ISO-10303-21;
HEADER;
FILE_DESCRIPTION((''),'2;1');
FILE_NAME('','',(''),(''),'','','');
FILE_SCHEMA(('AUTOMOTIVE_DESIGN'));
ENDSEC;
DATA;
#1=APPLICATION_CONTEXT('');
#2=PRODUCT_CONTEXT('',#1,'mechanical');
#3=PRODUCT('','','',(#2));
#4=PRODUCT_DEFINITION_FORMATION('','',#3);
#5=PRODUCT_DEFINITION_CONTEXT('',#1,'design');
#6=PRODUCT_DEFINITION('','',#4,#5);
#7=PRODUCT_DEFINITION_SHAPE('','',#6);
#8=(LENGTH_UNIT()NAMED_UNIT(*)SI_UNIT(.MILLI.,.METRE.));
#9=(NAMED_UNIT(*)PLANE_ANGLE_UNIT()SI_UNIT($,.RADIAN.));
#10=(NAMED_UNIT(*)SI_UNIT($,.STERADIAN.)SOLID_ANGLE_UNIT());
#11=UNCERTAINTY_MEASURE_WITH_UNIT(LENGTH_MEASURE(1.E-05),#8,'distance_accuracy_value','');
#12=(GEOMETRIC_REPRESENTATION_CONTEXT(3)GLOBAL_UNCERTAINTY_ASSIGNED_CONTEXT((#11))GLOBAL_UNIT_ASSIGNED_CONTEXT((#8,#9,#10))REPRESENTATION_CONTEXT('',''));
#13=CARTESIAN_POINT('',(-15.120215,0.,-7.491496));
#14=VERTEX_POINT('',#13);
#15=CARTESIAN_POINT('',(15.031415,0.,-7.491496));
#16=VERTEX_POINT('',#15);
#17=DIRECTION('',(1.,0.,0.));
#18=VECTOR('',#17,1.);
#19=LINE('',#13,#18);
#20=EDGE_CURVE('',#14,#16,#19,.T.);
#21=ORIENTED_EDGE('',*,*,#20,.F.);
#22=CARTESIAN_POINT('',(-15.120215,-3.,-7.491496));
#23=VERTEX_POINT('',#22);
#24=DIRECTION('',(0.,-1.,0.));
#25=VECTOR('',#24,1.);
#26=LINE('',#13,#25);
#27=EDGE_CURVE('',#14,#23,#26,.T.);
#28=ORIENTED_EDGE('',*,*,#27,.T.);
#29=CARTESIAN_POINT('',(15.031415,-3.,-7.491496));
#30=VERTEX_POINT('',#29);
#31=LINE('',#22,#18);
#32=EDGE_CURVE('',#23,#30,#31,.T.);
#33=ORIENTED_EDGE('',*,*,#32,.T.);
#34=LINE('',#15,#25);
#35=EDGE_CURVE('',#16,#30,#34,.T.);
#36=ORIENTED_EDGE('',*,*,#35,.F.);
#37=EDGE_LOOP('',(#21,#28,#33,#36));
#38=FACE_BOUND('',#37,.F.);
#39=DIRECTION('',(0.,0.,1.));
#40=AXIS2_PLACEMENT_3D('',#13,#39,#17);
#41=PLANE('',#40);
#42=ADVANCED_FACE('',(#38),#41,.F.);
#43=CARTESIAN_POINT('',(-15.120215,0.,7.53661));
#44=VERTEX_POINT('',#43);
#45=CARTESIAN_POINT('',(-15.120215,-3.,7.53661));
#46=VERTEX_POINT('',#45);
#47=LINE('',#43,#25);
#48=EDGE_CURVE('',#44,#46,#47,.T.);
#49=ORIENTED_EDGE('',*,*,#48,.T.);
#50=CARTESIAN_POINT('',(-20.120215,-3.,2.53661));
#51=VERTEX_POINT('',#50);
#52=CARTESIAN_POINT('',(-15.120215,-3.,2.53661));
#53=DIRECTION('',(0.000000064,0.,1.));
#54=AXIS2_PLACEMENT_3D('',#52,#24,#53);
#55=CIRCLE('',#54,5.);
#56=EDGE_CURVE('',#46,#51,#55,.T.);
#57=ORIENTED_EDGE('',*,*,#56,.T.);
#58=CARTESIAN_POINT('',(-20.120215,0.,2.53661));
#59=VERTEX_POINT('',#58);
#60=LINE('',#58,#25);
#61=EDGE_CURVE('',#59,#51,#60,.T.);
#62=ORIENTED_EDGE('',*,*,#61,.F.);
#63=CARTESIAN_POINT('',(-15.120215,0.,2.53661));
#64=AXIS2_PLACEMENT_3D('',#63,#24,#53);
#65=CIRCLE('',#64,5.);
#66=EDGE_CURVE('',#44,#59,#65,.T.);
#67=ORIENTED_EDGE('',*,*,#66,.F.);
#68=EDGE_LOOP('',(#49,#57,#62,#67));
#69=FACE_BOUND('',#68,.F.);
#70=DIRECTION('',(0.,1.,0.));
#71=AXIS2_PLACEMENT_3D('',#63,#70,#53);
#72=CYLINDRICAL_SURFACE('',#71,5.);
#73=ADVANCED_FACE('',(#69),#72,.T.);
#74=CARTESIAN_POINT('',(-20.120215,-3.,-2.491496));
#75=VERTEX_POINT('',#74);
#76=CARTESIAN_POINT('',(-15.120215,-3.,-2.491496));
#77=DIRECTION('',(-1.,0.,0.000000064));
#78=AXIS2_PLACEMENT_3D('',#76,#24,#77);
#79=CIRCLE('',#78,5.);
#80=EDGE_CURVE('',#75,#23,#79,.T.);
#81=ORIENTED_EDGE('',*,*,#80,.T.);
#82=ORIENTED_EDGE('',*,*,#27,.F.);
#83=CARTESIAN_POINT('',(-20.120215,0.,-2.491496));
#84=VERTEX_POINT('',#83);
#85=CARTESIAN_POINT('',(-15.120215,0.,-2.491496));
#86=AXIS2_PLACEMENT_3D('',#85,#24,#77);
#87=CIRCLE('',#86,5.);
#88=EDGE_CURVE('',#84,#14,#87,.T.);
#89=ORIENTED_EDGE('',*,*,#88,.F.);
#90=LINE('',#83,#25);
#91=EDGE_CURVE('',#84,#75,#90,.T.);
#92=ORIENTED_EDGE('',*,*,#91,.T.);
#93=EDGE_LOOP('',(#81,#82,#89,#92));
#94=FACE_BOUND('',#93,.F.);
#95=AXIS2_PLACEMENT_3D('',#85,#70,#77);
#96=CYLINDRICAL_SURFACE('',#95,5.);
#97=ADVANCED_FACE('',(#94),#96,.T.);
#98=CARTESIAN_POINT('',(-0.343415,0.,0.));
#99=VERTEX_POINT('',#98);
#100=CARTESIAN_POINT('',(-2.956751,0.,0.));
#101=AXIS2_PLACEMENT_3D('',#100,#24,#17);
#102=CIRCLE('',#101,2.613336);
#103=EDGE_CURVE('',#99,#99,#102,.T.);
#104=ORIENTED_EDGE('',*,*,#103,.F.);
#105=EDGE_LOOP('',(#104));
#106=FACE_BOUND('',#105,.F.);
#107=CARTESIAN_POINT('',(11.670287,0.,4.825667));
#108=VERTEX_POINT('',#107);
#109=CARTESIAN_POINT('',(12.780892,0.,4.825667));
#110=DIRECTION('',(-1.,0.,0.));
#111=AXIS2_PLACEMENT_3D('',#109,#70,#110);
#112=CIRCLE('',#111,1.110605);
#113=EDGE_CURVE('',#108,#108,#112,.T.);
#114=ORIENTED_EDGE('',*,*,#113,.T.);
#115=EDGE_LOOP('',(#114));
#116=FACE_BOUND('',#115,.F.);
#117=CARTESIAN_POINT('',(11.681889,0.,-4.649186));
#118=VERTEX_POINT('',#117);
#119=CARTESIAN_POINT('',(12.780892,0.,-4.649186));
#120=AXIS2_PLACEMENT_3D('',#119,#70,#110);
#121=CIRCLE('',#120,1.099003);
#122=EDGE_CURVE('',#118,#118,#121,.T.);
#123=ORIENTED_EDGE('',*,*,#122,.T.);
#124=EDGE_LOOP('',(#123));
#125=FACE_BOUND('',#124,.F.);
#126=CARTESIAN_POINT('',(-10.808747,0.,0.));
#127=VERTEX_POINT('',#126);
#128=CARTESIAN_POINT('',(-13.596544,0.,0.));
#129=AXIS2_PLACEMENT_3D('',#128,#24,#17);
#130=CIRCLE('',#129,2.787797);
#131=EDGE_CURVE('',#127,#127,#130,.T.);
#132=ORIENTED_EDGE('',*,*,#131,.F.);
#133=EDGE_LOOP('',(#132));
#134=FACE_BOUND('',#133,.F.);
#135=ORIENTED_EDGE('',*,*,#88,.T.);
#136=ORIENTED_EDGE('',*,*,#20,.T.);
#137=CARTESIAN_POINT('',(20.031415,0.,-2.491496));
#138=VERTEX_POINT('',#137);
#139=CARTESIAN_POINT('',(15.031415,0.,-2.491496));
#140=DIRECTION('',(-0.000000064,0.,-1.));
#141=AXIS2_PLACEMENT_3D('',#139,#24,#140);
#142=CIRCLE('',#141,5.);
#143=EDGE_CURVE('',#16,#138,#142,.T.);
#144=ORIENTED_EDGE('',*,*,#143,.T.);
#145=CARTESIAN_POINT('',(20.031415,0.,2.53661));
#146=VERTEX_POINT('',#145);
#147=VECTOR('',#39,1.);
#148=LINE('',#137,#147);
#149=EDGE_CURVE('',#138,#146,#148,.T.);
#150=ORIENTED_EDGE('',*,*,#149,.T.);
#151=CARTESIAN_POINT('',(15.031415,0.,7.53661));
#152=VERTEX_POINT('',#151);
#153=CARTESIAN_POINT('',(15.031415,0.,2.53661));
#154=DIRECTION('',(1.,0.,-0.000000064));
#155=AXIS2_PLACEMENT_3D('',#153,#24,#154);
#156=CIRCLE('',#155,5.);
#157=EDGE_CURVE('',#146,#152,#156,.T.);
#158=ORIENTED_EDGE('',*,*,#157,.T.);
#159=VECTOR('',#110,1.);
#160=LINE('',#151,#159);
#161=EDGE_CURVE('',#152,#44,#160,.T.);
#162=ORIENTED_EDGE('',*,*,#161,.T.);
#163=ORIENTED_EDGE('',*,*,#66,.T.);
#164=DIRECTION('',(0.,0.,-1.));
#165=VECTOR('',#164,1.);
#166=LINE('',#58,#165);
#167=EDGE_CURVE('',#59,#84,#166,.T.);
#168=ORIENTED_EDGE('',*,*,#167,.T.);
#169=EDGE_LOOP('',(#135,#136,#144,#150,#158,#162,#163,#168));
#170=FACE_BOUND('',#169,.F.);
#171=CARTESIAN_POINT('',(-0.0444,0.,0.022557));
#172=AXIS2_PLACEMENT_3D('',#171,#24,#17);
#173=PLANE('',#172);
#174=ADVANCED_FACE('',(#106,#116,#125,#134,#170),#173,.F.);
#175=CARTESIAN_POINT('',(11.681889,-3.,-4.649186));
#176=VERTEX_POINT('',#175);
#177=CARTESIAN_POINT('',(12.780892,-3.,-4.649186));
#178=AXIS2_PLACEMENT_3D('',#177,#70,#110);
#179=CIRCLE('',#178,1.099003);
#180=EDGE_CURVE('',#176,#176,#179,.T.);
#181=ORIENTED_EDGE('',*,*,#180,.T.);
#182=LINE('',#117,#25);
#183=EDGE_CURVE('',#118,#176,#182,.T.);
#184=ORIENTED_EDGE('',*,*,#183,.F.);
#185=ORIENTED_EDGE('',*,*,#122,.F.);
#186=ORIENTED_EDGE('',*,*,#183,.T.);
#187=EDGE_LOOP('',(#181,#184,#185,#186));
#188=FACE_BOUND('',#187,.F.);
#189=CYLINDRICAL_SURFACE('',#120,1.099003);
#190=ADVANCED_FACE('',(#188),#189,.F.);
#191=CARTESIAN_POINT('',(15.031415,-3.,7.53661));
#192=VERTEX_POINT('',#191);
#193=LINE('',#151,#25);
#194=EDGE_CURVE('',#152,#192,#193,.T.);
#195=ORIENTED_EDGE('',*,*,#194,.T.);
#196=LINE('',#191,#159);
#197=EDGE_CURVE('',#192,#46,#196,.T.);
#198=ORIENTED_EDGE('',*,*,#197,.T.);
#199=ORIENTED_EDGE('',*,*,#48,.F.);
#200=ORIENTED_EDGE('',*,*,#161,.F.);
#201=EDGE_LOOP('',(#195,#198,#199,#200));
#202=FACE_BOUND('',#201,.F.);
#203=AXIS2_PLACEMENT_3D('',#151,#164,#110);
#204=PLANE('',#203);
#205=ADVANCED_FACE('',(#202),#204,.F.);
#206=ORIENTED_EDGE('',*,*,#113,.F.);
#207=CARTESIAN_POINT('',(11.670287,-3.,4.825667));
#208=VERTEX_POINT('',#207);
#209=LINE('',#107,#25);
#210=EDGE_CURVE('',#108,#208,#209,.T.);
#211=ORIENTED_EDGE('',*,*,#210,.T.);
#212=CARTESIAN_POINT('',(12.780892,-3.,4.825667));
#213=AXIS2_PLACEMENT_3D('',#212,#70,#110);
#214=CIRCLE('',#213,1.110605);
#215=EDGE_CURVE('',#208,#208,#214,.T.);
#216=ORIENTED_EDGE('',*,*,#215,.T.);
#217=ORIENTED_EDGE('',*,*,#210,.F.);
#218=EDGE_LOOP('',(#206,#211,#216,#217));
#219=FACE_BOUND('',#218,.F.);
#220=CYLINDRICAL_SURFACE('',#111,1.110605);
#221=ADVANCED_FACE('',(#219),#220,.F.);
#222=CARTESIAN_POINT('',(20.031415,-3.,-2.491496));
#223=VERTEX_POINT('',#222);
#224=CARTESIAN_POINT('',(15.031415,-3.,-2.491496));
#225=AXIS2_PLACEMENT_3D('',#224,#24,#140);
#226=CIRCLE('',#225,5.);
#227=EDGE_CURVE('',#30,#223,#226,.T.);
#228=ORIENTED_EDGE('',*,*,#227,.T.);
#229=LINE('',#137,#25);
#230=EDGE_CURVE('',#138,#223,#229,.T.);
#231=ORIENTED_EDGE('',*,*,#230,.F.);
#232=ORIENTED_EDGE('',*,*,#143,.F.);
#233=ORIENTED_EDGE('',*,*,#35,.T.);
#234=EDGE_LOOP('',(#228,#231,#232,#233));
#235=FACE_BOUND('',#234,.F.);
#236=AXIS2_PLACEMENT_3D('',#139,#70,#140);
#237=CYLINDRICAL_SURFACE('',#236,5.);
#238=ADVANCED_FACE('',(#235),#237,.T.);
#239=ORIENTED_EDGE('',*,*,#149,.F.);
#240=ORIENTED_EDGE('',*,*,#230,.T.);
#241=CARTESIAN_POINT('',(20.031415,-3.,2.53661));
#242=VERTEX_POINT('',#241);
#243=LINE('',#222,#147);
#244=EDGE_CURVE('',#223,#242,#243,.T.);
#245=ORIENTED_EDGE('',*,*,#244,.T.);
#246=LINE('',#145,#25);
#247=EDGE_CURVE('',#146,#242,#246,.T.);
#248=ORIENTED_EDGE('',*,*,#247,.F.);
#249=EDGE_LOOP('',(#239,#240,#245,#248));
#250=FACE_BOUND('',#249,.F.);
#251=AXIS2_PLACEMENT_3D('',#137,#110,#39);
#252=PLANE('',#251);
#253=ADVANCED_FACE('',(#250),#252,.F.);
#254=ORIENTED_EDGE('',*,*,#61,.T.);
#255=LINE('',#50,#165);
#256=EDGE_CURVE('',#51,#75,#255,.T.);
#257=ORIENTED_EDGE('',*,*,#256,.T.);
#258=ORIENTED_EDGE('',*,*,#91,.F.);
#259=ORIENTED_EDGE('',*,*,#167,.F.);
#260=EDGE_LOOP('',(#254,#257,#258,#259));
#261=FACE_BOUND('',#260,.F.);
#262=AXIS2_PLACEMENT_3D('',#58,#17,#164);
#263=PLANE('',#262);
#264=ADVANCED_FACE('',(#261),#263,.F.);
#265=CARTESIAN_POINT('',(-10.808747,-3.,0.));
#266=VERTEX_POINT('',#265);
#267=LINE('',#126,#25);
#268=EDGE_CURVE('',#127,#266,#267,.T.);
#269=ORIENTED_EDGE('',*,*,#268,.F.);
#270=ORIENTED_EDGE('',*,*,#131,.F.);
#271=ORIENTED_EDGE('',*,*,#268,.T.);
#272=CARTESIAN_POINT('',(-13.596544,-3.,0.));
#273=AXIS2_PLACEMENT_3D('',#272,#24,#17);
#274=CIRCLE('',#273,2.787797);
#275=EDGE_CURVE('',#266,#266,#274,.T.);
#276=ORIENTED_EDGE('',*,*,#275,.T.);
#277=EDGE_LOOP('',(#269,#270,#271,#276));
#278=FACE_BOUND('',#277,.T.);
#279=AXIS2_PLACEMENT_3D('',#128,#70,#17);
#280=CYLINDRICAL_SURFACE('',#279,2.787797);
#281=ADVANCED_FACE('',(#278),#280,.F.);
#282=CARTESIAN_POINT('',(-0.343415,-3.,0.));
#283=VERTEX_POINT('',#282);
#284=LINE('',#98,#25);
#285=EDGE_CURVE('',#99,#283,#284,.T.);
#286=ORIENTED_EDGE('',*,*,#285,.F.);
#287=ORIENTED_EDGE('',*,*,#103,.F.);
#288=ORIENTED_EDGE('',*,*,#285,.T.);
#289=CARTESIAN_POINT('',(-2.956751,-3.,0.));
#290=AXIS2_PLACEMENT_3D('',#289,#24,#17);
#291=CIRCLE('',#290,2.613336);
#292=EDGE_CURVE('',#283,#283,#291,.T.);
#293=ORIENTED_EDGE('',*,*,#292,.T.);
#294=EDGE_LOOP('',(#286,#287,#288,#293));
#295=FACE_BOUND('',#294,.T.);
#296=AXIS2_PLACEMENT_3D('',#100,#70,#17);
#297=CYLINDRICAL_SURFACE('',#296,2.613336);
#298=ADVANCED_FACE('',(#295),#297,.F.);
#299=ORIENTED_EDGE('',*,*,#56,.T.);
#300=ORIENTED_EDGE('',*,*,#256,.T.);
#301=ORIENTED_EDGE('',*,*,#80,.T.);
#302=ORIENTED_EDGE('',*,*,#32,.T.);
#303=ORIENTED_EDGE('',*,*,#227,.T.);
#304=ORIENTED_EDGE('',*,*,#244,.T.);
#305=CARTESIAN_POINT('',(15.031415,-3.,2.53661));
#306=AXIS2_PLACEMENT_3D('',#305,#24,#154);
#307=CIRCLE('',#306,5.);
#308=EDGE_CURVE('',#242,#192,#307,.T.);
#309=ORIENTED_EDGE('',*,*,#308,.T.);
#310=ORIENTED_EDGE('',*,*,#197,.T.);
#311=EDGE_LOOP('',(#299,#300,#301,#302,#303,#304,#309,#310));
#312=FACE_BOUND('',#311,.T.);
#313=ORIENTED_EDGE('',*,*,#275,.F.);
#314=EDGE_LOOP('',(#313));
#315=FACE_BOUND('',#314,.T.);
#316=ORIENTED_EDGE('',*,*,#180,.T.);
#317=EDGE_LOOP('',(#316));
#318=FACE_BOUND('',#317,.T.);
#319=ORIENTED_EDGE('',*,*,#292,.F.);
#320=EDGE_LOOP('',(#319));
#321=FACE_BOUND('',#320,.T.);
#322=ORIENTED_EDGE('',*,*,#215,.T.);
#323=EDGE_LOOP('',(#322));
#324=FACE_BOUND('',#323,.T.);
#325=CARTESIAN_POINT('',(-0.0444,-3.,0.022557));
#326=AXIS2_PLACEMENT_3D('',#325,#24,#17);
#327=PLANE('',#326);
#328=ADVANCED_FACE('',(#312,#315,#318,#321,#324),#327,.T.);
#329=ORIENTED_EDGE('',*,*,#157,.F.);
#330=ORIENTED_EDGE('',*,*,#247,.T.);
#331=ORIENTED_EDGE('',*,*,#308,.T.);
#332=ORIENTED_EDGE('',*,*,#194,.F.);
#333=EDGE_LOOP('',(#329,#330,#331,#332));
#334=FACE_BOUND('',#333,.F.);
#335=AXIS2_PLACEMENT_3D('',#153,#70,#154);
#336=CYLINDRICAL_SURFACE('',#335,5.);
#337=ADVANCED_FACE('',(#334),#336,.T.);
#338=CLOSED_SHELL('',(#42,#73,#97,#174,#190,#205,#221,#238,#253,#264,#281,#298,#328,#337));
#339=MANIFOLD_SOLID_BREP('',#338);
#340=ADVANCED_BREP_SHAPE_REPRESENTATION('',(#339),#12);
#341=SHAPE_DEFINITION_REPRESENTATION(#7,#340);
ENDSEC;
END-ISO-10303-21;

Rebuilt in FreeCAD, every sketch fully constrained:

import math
import FreeCAD as App
import Part
import Sketcher

doc = App.newDocument("Part")
body = doc.addObject("PartDesign::Body", "Body")

sketch1 = body.newObject("Sketcher::SketchObject", "Sketch")
sketch1.AttachmentSupport = (doc.getObject("XZ_Plane"), [""])
sketch1.MapMode = "FlatFace"
sketch1.addGeometry([
    Part.LineSegment(App.Vector(15.031415, 7.53661, 0), App.Vector(-15.120215, 7.53661, 0)),
    Part.ArcOfCircle(Part.Circle(App.Vector(-15.120215, 2.53661, 0), App.Vector(0, 0, 1), 5), math.radians(89.999996), math.radians(180.000004)),
    Part.LineSegment(App.Vector(-20.120215, 2.53661, 0), App.Vector(-20.120215, -2.491496, 0)),
    Part.ArcOfCircle(Part.Circle(App.Vector(-15.120215, -2.491496, 0), App.Vector(0, 0, 1), 5), math.radians(179.999996), math.radians(270.000004)),
    Part.LineSegment(App.Vector(-15.120215, -7.491496, 0), App.Vector(15.031415, -7.491496, 0)),
    Part.ArcOfCircle(Part.Circle(App.Vector(15.031415, -2.491496, 0), App.Vector(0, 0, 1), 5), math.radians(-90.000004), math.radians(0.000004)),
    Part.LineSegment(App.Vector(20.031415, -2.491496, 0), App.Vector(20.031415, 2.53661, 0)),
    Part.ArcOfCircle(Part.Circle(App.Vector(15.031415, 2.53661, 0), App.Vector(0, 0, 1), 5), math.radians(-0.000004), math.radians(90.000004)),
    Part.Circle(App.Vector(-13.596544, 0, 0), App.Vector(0, 0, 1), 2.787797),
    Part.Circle(App.Vector(-2.956751, 0, 0), App.Vector(0, 0, 1), 2.613336),
], False)
sketch1.addConstraint([
    Sketcher.Constraint("Tangent", 0, 2, 1, 1),
    Sketcher.Constraint("Tangent", 1, 2, 2, 1),
    Sketcher.Constraint("Tangent", 2, 2, 3, 1),
    Sketcher.Constraint("Tangent", 3, 2, 4, 1),
    Sketcher.Constraint("Tangent", 4, 2, 5, 1),
    Sketcher.Constraint("Tangent", 5, 2, 6, 1),
    Sketcher.Constraint("Tangent", 6, 2, 7, 1),
    Sketcher.Constraint("Tangent", 7, 2, 0, 1),
    Sketcher.Constraint("Horizontal", 0),
    Sketcher.Constraint("Vertical", 2),
    Sketcher.Constraint("Horizontal", 4),
    Sketcher.Constraint("Vertical", 6),
    Sketcher.Constraint("Equal", 1, 3),
    Sketcher.Constraint("Equal", 3, 5),
    Sketcher.Constraint("Equal", 5, 7),
    Sketcher.Constraint("PointOnObject", 8, 3, -1),
    Sketcher.Constraint("PointOnObject", 9, 3, -1),
    Sketcher.Constraint("Radius", 1, 5.0),
    Sketcher.Constraint("Diameter", 9, 5.226672),
    Sketcher.Constraint("Diameter", 8, 5.575594),
    Sketcher.Constraint("DistanceX", 0, 2, 0, 1, 30.15163),
    Sketcher.Constraint("DistanceY", 2, 2, 2, 1, 5.028106),
    Sketcher.Constraint("DistanceY", -1, 1, 1, 3, 2.53661),
    Sketcher.Constraint("DistanceX", 9, 3, -1, 1, 2.956751),
    Sketcher.Constraint("DistanceX", 3, 3, 8, 3, 1.523671),
    Sketcher.Constraint("DistanceX", 1, 3, -1, 1, 15.120215),
])
pad1 = body.newObject("PartDesign::Pad", "Pad")
pad1.Profile = sketch1
pad1.Length = 3

sketch2 = body.newObject("Sketcher::SketchObject", "Sketch001")
sketch2.AttachmentSupport = (doc.getObject("XZ_Plane"), [""])
sketch2.MapMode = "FlatFace"
sketch2.addGeometry([
    Part.Circle(App.Vector(12.780892, 4.825667, 0), App.Vector(0, 0, 1), 1.110605),
    Part.Circle(App.Vector(12.780892, -4.649186, 0), App.Vector(0, 0, 1), 1.099003),
], False)
sketch2.addConstraint([
    Sketcher.Constraint("Vertical", 0, 3, 1, 3),
    Sketcher.Constraint("Diameter", 0, 2.22121),
    Sketcher.Constraint("Diameter", 1, 2.198006),
    Sketcher.Constraint("DistanceX", -1, 1, 0, 3, 12.780892),
    Sketcher.Constraint("DistanceY", -1, 1, 0, 3, 4.825667),
    Sketcher.Constraint("DistanceY", 1, 3, -1, 1, 4.649186),
])
pocket1 = body.newObject("PartDesign::Pocket", "Pocket")
pocket1.Profile = sketch2
pocket1.Length = 25
pocket1.Reversed = True

doc.recompute()
